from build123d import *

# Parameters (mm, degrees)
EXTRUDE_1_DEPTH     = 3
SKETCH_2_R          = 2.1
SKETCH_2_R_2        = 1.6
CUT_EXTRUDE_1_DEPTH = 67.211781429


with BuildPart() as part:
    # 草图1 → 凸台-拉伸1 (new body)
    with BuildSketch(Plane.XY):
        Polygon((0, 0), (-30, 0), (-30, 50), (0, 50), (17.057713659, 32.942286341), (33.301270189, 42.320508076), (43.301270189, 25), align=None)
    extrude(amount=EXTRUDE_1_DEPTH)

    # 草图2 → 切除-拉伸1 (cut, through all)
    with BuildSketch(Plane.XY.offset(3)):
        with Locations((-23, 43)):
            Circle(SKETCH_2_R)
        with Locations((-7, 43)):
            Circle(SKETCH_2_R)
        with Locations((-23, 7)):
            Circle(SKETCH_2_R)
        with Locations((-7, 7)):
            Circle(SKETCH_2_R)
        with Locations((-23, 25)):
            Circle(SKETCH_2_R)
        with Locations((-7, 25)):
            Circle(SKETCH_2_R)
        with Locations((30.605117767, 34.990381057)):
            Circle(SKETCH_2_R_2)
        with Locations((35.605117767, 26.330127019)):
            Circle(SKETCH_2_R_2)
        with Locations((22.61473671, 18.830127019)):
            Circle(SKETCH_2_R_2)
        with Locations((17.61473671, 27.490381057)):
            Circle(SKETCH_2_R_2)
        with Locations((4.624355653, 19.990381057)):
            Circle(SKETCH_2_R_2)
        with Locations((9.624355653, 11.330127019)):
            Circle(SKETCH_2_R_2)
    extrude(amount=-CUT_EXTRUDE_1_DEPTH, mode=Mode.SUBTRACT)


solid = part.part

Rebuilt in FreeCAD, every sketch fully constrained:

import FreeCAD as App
import Part
import Sketcher

V = App.Vector
Q = App.Units.Quantity


def add_polygon(sketch, points):
    """Adds a closed chain of lines whose ends are joined by coincident constraints."""
    first, n = sketch.GeometryCount, len(points)
    for a, b in zip(points, points[1:] + points[:1]):
        sketch.addGeometry(Part.LineSegment(App.Vector(*a, 0), App.Vector(*b, 0)), False)
    for i in range(n):
        sketch.addConstraint(Sketcher.Constraint("Coincident", first + i, 2, first + (i + 1) % n, 1))

doc = App.newDocument("Part")
body = doc.addObject("PartDesign::Body", "Body")

# Sketch on XY plane
sketch1 = body.newObject("Sketcher::SketchObject", "Sketch")
sketch1.AttachmentSupport = (doc.getObject("XY_Plane"), [""])
sketch1.MapMode = "FlatFace"
add_polygon(sketch1, [(-30, 0), (0, 0), (43, 25), (33, 42), (17, 33), (0, 50), (-30, 50)])  # lines 0-6
sketch1.addConstraint([
    Sketcher.Constraint("Horizontal", 0),
    Sketcher.Constraint("Horizontal", 5),
    Sketcher.Constraint("Vertical", 6),
    Sketcher.Constraint("Coincident", 0, 2, -1, 1),
    Sketcher.Constraint("PointOnObject", 4, 2, -2),
    Sketcher.Constraint("Perpendicular", 1, 2),
    Sketcher.Constraint("Perpendicular", 2, 3),
    Sketcher.Constraint("DistanceX", 0, 1, 0, 2, Q("30 mm")),
    Sketcher.Constraint("DistanceY", 6, 2, 6, 1, Q("50 mm")),
    Sketcher.Constraint("Angle", 1, Q("30 deg")),
    Sketcher.Constraint("Angle", 4, Q("135 deg")),
    Sketcher.Constraint("Distance", 1, Q("50 mm")),
    Sketcher.Constraint("Distance", 2, Q("20 mm")),
])
pad1 = body.newObject("PartDesign::Pad", "Pad")
pad1.Profile = sketch1
pad1.Length = 3

# Sketch on XY plane
sketch2 = body.newObject("Sketcher::SketchObject", "Sketch001")
sketch2.AttachmentSupport = (doc.getObject("XY_Plane"), [""])
sketch2.MapMode = "FlatFace"
sketch2.AttachmentOffset = App.Placement(V(0, 0, 3), App.Rotation())
sketch2.addGeometry([
    Part.Circle(V(-23, 43, 0), V(0, 0, 1), 2.1),  # 0
    Part.Circle(V(-7, 43, 0), V(0, 0, 1), 2.1),  # 1
    Part.Circle(V(-23, 7, 0), V(0, 0, 1), 2.1),  # 2
    Part.Circle(V(-7, 7, 0), V(0, 0, 1), 2.1),  # 3
    Part.Circle(V(-23, 25, 0), V(0, 0, 1), 2.1),  # 4
    Part.Circle(V(-7, 25, 0), V(0, 0, 1), 2.1),  # 5
    Part.Circle(V(30.6, 35, 0), V(0, 0, 1), 1.6),  # 6
    Part.Circle(V(35.6, 26.3, 0), V(0, 0, 1), 1.6),  # 7
    Part.Circle(V(22.6, 18.8, 0), V(0, 0, 1), 1.6),  # 8
    Part.Circle(V(17.6, 27.5, 0), V(0, 0, 1), 1.6),  # 9
    Part.Circle(V(4.6, 20, 0), V(0, 0, 1), 1.6),  # 10
    Part.Circle(V(9.6, 11.3, 0), V(0, 0, 1), 1.6),  # 11
], False)
sketch2.addConstraint([
    Sketcher.Constraint("Equal", 0, 1),
    Sketcher.Constraint("Equal", 1, 2),
    Sketcher.Constraint("Equal", 2, 3),
    Sketcher.Constraint("Equal", 3, 4),
    Sketcher.Constraint("Equal", 4, 5),
    Sketcher.Constraint("Equal", 6, 7),
    Sketcher.Constraint("Equal", 7, 8),
    Sketcher.Constraint("Equal", 8, 9),
    Sketcher.Constraint("Equal", 9, 10),
    Sketcher.Constraint("Equal", 10, 11),
    Sketcher.Constraint("Horizontal", 0, 3, 1, 3),
    Sketcher.Constraint("Horizontal", 2, 3, 3, 3),
    Sketcher.Constraint("Horizontal", 4, 3, 5, 3),
    Sketcher.Constraint("Vertical", 0, 3, 2, 3),
    Sketcher.Constraint("Vertical", 1, 3, 3, 3),
    Sketcher.Constraint("Vertical", 2, 3, 4, 3),
    Sketcher.Constraint("Vertical", 3, 3, 5, 3),
    Sketcher.Constraint("Diameter", 0, Q("4.2 mm")),
    Sketcher.Constraint("Diameter", 6, Q("3.2 mm")),
    Sketcher.Constraint("DistanceX", 0, 3, -1, 1, Q("23 mm")),
    Sketcher.Constraint("DistanceY", -1, 1, 0, 3, Q("43 mm")),
    Sketcher.Constraint("DistanceX", 1, 3, -1, 1, Q("7 mm")),
    Sketcher.Constraint("DistanceY", -1, 1, 2, 3, Q("7 mm")),
    Sketcher.Constraint("DistanceY", -1, 1, 4, 3, Q("25 mm")),
    Sketcher.Constraint("DistanceX", 6, 3, 7, 3, Q("5 mm")),
    Sketcher.Constraint("DistanceX", 9, 3, 8, 3, Q("5 mm")),
    Sketcher.Constraint("DistanceX", 10, 3, 11, 3, Q("5 mm")),
    Sketcher.Constraint("DistanceY", 8, 3, 7, 3, Q("7.5 mm")),
    Sketcher.Constraint("DistanceY", 9, 3, 6, 3, Q("7.5 mm")),
    Sketcher.Constraint("DistanceY", 10, 3, 9, 3, Q("7.5 mm")),
    Sketcher.Constraint("DistanceY", 11, 3, 8, 3, Q("7.5 mm")),
    Sketcher.Constraint("DistanceY", -1, 1, 6, 3, Q("34.990381 mm")),
    Sketcher.Constraint("DistanceX", 8, 3, 7, 3, Q("12.990381 mm")),
    Sketcher.Constraint("DistanceX", 10, 3, 9, 3, Q("12.990381 mm")),
    Sketcher.Constraint("DistanceX", -1, 1, 6, 3, Q("30.605118 mm")),
    Sketcher.Constraint("DistanceY", -1, 1, 7, 3, Q("26.330127 mm")),
])
pocket1 = body.newObject("PartDesign::Pocket", "Pocket")
pocket1.Profile = sketch2
pocket1.Type = "ThroughAll"

doc.recompute()
